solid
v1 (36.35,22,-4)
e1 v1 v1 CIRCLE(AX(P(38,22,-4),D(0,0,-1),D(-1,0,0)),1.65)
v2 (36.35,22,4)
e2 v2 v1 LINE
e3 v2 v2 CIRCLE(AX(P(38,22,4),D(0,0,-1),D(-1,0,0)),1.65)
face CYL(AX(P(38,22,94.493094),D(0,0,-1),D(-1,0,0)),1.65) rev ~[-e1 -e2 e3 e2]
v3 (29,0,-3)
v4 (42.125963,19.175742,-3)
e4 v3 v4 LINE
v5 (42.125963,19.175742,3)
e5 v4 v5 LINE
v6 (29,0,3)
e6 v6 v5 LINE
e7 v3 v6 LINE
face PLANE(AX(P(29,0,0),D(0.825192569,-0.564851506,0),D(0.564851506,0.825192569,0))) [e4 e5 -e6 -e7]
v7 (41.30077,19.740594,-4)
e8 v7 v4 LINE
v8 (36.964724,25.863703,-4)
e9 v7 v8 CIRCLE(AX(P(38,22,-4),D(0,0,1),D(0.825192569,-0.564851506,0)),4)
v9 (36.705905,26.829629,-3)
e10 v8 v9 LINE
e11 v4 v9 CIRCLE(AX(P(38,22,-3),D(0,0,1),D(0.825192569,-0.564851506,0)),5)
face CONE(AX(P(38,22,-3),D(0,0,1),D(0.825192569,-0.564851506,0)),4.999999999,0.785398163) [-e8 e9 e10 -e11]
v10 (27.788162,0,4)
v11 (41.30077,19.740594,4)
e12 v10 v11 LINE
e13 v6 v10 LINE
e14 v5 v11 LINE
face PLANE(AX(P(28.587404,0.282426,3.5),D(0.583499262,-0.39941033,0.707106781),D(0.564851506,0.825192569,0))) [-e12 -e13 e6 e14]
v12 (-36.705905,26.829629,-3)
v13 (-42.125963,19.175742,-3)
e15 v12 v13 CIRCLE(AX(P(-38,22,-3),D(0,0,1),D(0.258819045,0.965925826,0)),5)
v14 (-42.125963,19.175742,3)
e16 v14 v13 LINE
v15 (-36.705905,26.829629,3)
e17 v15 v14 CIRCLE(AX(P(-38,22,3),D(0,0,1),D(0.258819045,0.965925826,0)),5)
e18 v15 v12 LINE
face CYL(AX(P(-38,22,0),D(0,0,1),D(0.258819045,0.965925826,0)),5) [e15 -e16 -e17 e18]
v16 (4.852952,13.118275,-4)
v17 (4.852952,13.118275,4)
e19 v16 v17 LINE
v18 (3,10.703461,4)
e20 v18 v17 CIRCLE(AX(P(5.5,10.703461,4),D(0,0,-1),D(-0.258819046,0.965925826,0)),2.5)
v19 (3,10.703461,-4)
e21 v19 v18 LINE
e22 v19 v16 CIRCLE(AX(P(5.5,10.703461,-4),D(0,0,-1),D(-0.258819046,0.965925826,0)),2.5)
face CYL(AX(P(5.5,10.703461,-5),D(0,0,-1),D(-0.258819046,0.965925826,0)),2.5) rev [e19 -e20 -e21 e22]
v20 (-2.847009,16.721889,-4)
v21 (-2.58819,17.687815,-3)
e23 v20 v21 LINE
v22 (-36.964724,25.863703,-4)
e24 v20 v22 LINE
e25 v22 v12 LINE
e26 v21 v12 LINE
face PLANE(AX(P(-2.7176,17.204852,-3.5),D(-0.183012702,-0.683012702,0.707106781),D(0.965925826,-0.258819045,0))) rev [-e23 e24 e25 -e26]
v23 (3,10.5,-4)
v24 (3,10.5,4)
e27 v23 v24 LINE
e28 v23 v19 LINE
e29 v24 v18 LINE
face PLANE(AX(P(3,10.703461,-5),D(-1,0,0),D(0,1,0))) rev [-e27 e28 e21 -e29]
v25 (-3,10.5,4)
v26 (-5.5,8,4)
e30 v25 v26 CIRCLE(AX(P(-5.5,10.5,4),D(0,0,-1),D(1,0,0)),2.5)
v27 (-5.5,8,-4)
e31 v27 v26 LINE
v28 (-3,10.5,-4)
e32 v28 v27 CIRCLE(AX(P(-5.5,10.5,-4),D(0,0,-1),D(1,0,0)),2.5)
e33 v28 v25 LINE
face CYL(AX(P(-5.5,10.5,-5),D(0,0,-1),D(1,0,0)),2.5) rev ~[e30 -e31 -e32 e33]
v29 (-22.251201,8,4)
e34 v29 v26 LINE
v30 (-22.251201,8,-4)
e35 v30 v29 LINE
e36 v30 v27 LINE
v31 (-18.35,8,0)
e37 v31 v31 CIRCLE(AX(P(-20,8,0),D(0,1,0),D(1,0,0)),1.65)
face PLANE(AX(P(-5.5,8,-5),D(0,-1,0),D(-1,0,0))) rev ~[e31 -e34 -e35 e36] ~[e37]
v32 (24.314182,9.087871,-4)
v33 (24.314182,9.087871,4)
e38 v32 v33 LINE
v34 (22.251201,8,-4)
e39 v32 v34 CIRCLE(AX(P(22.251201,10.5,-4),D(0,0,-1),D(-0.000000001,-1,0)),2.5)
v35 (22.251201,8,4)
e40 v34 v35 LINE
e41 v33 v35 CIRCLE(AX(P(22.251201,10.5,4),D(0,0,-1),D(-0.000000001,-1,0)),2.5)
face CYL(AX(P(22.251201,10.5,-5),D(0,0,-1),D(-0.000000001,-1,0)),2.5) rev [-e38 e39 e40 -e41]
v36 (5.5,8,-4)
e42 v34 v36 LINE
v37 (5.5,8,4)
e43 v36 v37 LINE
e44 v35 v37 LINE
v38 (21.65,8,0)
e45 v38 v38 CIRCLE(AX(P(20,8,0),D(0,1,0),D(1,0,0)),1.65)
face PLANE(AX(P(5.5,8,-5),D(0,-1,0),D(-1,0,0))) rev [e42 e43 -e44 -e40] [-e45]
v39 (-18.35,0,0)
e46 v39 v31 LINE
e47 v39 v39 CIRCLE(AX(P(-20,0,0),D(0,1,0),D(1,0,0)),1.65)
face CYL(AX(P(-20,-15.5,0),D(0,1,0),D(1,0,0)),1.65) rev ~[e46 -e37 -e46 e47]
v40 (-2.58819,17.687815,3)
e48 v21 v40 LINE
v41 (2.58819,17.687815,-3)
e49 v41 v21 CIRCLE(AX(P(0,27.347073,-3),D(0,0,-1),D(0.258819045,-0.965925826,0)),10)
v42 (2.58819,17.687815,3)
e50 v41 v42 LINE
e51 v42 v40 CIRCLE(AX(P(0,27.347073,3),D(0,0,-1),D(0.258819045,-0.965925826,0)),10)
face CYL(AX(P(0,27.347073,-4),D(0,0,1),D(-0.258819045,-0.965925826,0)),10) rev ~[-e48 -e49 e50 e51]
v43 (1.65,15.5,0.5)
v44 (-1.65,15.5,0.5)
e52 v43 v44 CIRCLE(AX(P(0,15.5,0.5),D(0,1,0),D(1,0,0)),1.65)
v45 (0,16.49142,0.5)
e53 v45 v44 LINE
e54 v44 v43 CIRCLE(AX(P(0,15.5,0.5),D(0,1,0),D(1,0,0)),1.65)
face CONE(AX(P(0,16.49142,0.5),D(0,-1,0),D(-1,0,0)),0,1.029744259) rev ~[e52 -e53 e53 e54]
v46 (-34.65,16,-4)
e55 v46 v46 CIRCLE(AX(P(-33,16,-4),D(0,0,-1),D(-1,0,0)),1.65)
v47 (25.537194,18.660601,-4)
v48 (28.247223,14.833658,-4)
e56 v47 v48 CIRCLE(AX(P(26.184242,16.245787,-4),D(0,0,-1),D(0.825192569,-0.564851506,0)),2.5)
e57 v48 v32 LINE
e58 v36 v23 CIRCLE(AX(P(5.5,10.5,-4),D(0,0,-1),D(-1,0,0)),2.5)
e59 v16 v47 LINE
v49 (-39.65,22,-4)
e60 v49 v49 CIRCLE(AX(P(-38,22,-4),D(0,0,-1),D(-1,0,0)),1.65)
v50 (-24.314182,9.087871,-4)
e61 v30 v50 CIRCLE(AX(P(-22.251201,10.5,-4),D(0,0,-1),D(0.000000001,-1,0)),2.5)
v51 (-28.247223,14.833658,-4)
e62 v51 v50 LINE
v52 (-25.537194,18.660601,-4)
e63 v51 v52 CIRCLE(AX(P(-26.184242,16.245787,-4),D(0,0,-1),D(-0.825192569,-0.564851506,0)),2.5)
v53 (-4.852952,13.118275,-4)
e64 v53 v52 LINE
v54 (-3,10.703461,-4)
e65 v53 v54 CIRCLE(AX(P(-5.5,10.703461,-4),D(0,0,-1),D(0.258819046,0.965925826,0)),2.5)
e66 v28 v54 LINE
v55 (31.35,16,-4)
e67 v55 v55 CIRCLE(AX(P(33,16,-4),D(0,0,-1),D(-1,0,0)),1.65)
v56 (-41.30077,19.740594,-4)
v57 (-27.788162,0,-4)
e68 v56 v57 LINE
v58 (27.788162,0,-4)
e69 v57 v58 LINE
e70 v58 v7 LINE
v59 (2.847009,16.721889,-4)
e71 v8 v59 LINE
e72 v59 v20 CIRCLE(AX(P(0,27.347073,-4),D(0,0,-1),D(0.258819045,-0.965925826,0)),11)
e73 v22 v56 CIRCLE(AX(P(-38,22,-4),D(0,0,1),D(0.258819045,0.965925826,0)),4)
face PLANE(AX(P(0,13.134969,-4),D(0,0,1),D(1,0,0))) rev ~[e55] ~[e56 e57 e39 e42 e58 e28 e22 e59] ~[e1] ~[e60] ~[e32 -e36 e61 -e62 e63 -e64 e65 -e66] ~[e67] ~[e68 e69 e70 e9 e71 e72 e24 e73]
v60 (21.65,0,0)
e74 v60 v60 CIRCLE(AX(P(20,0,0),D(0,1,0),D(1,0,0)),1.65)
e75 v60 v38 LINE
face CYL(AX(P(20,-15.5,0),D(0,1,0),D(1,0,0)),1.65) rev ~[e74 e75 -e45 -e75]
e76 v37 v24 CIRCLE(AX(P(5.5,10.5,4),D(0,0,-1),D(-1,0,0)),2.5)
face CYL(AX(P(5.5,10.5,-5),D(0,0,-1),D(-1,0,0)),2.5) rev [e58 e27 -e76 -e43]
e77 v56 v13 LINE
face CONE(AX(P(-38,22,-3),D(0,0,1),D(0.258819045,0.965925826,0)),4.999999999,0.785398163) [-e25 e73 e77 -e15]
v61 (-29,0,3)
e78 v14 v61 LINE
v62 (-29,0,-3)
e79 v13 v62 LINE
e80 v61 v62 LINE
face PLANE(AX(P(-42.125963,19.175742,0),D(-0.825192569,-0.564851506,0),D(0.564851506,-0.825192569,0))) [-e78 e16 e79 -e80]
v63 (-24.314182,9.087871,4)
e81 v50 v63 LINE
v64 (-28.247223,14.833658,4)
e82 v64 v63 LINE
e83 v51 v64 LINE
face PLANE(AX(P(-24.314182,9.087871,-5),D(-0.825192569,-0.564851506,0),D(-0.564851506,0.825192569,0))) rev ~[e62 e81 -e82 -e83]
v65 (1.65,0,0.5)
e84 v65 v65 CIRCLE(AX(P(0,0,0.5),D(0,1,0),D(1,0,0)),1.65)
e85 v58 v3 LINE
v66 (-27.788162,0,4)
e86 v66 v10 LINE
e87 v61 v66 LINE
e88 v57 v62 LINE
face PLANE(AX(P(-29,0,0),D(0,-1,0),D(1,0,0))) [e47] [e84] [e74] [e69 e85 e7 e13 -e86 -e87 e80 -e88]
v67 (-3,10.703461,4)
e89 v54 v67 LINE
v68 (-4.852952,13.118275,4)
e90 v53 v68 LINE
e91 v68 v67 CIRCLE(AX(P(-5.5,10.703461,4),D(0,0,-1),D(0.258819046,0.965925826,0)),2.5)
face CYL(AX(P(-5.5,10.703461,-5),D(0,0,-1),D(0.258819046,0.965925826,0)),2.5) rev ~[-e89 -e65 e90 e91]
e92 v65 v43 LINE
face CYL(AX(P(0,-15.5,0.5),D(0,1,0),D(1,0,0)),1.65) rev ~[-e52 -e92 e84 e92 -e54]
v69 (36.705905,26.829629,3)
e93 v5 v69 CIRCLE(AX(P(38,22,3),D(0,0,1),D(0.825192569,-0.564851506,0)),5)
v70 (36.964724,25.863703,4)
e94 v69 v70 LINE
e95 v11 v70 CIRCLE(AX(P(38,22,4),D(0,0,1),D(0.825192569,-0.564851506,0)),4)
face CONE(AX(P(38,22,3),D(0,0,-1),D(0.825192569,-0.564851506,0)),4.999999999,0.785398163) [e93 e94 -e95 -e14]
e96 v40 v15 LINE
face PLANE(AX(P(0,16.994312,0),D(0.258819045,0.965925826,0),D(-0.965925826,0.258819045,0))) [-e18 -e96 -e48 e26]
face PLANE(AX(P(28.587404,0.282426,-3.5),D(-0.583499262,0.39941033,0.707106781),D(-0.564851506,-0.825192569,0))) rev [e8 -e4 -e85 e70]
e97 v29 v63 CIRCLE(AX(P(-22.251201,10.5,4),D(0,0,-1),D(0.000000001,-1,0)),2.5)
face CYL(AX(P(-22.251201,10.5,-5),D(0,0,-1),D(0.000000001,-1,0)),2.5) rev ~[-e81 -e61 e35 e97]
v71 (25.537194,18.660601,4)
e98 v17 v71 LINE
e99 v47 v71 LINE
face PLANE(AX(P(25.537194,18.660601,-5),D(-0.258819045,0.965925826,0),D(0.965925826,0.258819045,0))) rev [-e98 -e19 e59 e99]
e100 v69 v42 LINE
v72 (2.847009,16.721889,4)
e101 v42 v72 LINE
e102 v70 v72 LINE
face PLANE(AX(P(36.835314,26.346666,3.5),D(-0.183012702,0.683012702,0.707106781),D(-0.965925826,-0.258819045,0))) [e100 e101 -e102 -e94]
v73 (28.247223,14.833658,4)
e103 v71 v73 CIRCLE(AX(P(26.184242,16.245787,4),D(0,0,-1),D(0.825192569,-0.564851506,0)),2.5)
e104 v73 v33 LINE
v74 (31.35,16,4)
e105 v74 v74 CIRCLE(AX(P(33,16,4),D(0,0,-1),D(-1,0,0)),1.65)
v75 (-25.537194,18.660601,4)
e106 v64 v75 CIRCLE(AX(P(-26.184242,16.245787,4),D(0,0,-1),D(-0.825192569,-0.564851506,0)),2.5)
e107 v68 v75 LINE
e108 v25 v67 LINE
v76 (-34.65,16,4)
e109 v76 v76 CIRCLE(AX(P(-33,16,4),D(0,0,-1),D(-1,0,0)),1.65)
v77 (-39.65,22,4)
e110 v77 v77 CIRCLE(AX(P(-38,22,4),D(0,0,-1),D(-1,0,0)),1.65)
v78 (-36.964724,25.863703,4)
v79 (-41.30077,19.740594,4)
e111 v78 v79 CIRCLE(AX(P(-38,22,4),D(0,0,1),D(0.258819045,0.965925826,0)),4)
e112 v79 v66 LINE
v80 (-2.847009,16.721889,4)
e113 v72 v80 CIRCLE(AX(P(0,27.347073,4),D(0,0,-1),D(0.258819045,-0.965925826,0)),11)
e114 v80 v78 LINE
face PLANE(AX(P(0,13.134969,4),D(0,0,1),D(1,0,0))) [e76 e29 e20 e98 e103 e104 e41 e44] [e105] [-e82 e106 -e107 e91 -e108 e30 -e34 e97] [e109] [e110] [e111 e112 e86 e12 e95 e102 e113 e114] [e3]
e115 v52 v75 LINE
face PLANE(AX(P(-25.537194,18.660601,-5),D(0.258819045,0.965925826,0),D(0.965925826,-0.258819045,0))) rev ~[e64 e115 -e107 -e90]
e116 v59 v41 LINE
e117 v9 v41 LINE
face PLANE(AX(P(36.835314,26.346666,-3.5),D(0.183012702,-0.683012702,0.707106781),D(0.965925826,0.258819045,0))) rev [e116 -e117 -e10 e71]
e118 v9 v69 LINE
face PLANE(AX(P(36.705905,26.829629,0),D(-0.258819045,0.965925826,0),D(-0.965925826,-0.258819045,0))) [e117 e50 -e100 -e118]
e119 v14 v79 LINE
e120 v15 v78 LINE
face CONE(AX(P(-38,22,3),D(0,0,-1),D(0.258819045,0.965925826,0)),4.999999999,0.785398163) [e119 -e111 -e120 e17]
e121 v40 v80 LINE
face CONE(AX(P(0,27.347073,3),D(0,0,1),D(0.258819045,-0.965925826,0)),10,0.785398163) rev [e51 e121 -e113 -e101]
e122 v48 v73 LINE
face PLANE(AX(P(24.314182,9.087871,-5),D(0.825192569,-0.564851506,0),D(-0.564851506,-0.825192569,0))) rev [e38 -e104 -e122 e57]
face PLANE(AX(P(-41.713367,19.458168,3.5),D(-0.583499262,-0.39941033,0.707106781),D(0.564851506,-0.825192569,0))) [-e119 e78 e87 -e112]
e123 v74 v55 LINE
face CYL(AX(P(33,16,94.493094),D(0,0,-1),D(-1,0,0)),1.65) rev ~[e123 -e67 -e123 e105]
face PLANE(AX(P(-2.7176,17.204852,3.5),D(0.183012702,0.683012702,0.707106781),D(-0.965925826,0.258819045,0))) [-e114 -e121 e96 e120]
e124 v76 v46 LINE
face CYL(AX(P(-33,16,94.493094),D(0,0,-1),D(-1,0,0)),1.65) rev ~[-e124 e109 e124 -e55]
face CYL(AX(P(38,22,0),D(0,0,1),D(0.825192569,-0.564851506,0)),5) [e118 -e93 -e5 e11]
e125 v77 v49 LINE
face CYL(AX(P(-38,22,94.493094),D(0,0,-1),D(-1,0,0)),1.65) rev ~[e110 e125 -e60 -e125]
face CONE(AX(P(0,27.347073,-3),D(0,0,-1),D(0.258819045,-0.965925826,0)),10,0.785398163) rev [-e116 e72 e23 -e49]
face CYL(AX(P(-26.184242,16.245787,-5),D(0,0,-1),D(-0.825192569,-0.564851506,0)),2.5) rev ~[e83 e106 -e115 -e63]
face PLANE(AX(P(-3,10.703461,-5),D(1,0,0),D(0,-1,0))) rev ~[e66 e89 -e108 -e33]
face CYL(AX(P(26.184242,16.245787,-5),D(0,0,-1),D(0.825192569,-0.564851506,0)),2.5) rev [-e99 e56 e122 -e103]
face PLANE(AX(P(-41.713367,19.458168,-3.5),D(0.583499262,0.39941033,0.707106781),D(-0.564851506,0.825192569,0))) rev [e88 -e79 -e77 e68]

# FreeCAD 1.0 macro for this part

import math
import FreeCAD as App
import Part
import Sketcher

V = App.Vector
Q = App.Units.Quantity


def edges_at(feature, points):
    """Names of the edges that pass closest to the given points."""
    edges = feature.Shape.Edges
    near = lambda p: min(range(len(edges)), key=lambda i: edges[i].distToShape(Part.Vertex(*p))[0])
    return sorted({f"Edge{near(p) + 1}" for p in points})

doc = App.newDocument("Part")
body = doc.addObject("PartDesign::Body", "Body")

# Sketch on XY plane
sketch1 = doc.addObject("Sketcher::SketchObject", "Sketch")
body.addObject(sketch1)
sketch1.AttachmentSupport = (doc.XY_Plane, [""])
sketch1.MapMode = "FlatFace"
sketch1.addGeometry(Part.LineSegment(V(-29, 0, 0), V(29, 0, 0)), False)
sketch1.addGeometry(Part.LineSegment(V(29, 0, 0), V(42.125963, 19.175742, 0)), False)
sketch1.addGeometry(Part.ArcOfCircle(Part.Circle(V(38, 22, 0), V(0, 0, 1), 5), math.radians(-34.39198), math.radians(105)), False)
sketch1.addGeometry(Part.LineSegment(V(36.705905, 26.829629, 0), V(0, 16.994312, 0)), False)
sketch1.addGeometry(Part.LineSegment(V(0, 16.994312, 0), V(-36.705905, 26.829629, 0)), False)
sketch1.addGeometry(Part.ArcOfCircle(Part.Circle(V(-38, 22, 0), V(0, 0, 1), 5), math.radians(75), math.radians(214.39198)), False)
sketch1.addGeometry(Part.LineSegment(V(-42.125963, 19.175742, 0), V(-29, 0, 0)), False)
sketch1.addConstraint(Sketcher.Constraint("Coincident", 0, 2, 1, 1))
sketch1.addConstraint(Sketcher.Constraint("Tangent", 1, 2, 2, 1))
sketch1.addConstraint(Sketcher.Constraint("Tangent", 2, 2, 3, 1))
sketch1.addConstraint(Sketcher.Constraint("Coincident", 3, 2, 4, 1))
sketch1.addConstraint(Sketcher.Constraint("Tangent", 4, 2, 5, 1))
sketch1.addConstraint(Sketcher.Constraint("Tangent", 5, 2, 6, 1))
sketch1.addConstraint(Sketcher.Constraint("Coincident", 6, 2, 0, 1))
sketch1.addConstraint(Sketcher.Constraint("Horizontal", 0))
sketch1.addConstraint(Sketcher.Constraint("Equal", 2, 5))
sketch1.addConstraint(Sketcher.Constraint("Symmetric", 0, 2, 6, 2, -1, 1))
sketch1.addConstraint(Sketcher.Constraint("Symmetric", 2, 3, 5, 3, -2))
sketch1.addConstraint(Sketcher.Constraint("PointOnObject", 3, 2, -2))
sketch1.addConstraint(Sketcher.Constraint("Radius", 2, 5.0))
sketch1.addConstraint(Sketcher.Constraint("DistanceX", 0, 1, 0, 2, 58.0))
sketch1.addConstraint(Sketcher.Constraint("Angle", 3, Q("-165 deg")))
sketch1.addConstraint(Sketcher.Constraint("DistanceX", -1, 1, 2, 3, 38.0))
sketch1.addConstraint(Sketcher.Constraint("DistanceY", -1, 1, 2, 3, 22.0))
pad1 = doc.addObject("PartDesign::Pad", "Pad")
body.addObject(pad1)
pad1.Profile = sketch1
pad1.Length = 8
pad1.Midplane = True

# Sketch on XY plane
sketch2 = doc.addObject("Sketcher::SketchObject", "Sketch001")
body.addObject(sketch2)
sketch2.AttachmentSupport = (doc.XY_Plane, [""])
sketch2.MapMode = "FlatFace"
sketch2.AttachmentOffset = App.Placement(V(0, 0, 4), App.Rotation())
sketch2.addGeometry(Part.Circle(V(-38, 22, 0), V(0, 0, 1), 1.65), False)
sketch2.addGeometry(Part.Circle(V(38, 22, 0), V(0, 0, 1), 1.65), False)
sketch2.addGeometry(Part.Circle(V(-33, 16, 0), V(0, 0, 1), 1.65), False)
sketch2.addGeometry(Part.Circle(V(33, 16, 0), V(0, 0, 1), 1.65), False)
sketch2.addConstraint(Sketcher.Constraint("Equal", 0, 1))
sketch2.addConstraint(Sketcher.Constraint("Equal", 1, 2))
sketch2.addConstraint(Sketcher.Constraint("Equal", 2, 3))
sketch2.addConstraint(Sketcher.Constraint("Symmetric", 0, 3, 1, 3, -2))
sketch2.addConstraint(Sketcher.Constraint("Symmetric", 2, 3, 3, 3, -2))
sketch2.addConstraint(Sketcher.Constraint("Diameter", 0, 3.3))
sketch2.addConstraint(Sketcher.Constraint("DistanceX", 0, 3, -1, 1, 38.0))
sketch2.addConstraint(Sketcher.Constraint("DistanceY", -1, 1, 0, 3, 22.0))
sketch2.addConstraint(Sketcher.Constraint("DistanceX", 2, 3, -1, 1, 33.0))
sketch2.addConstraint(Sketcher.Constraint("DistanceY", -1, 1, 2, 3, 16.0))
doc.recompute()
hole = doc.addObject("PartDesign::Hole", "Hole")
body.addObject(hole)
hole.Profile = sketch2
hole.ThreadType = "None"
hole.Diameter = 3.3
hole.DepthType = "ThroughAll"

# Sketch on XZ plane
sketch3 = doc.addObject("Sketcher::SketchObject", "Sketch002")
body.addObject(sketch3)
sketch3.AttachmentSupport = (doc.XZ_Plane, [""])
sketch3.MapMode = "FlatFace"
sketch3.addGeometry(Part.Circle(V(-20, 0, 0), V(0, 0, 1), 1.65), False)
sketch3.addGeometry(Part.Circle(V(20, 0, 0), V(0, 0, 1), 1.65), False)
sketch3.addGeometry(Part.Circle(V(0, 0.5, 0), V(0, 0, 1), 1.65), False)
sketch3.addConstraint(Sketcher.Constraint("Equal", 0, 1))
sketch3.addConstraint(Sketcher.Constraint("Equal", 1, 2))
sketch3.addConstraint(Sketcher.Constraint("Symmetric", 0, 3, 1, 3, -1, 1))
sketch3.addConstraint(Sketcher.Constraint("PointOnObject", 0, 3, -1))
sketch3.addConstraint(Sketcher.Constraint("PointOnObject", 2, 3, -2))
sketch3.addConstraint(Sketcher.Constraint("Diameter", 0, 3.3))
sketch3.addConstraint(Sketcher.Constraint("DistanceX", 0, 3, -1, 1, 20.0))
sketch3.addConstraint(Sketcher.Constraint("DistanceY", -1, 1, 2, 3, 0.5))
doc.recompute()
hole2 = doc.addObject("PartDesign::Hole", "Hole001")
body.addObject(hole2)
hole2.Profile = sketch3
hole2.ThreadType = "None"
hole2.Diameter = 3.3
hole2.DepthType = "Dimension"
hole2.Depth = 15.5
hole2.DrillPoint = "Angled"
hole2.DrillPointAngle = 118
doc.recompute()

fillet = doc.addObject("PartDesign::Fillet", "Fillet")
body.addObject(fillet)
fillet.Base = (hole2, edges_at(hole2, [(0, 16.994, 0)]))
fillet.Radius = 10

# Sketch on XY plane
sketch4 = doc.addObject("Sketcher::SketchObject", "Sketch003")
body.addObject(sketch4)
sketch4.AttachmentSupport = (doc.XY_Plane, [""])
sketch4.MapMode = "FlatFace"
sketch4.AttachmentOffset = App.Placement(V(0, 0, -5), App.Rotation())
sketch4.addGeometry(Part.LineSegment(V(-3, 10.5, 0), V(-3, 10.703461, 0)), False)
sketch4.addGeometry(Part.ArcOfCircle(Part.Circle(V(-5.5, 10.703461, 0), V(0, 0, 1), 2.5), math.radians(0), math.radians(75)), False)
sketch4.addGeometry(Part.LineSegment(V(-4.852952, 13.118275, 0), V(-25.537194, 18.660601, 0)), False)
sketch4.addGeometry(Part.ArcOfCircle(Part.Circle(V(-26.184242, 16.245787, 0), V(0, 0, 1), 2.5), math.radians(75), math.radians(214.39198)), False)
sketch4.addGeometry(Part.LineSegment(V(-28.247223, 14.833658, 0), V(-24.314182, 9.087871, 0)), False)
sketch4.addGeometry(Part.ArcOfCircle(Part.Circle(V(-22.251201, 10.5, 0), V(0, 0, 1), 2.5), math.radians(-145.60802), math.radians(-90)), False)
sketch4.addGeometry(Part.LineSegment(V(-22.251201, 8, 0), V(-5.5, 8, 0)), False)
sketch4.addGeometry(Part.ArcOfCircle(Part.Circle(V(-5.5, 10.5, 0), V(0, 0, 1), 2.5), math.radians(-90), math.radians(0)), False)
sketch4.addConstraint(Sketcher.Constraint("Tangent", 0, 2, 1, 1))
sketch4.addConstraint(Sketcher.Constraint("Tangent", 1, 2, 2, 1))
sketch4.addConstraint(Sketcher.Constraint("Tangent", 2, 2, 3, 1))
sketch4.addConstraint(Sketcher.Constraint("Tangent", 3, 2, 4, 1))
sketch4.addConstraint(Sketcher.Constraint("Tangent", 4, 2, 5, 1))
sketch4.addConstraint(Sketcher.Constraint("Tangent", 5, 2, 6, 1))
sketch4.addConstraint(Sketcher.Constraint("Tangent", 6, 2, 7, 1))
sketch4.addConstraint(Sketcher.Constraint("Tangent", 7, 2, 0, 1))
sketch4.addConstraint(Sketcher.Constraint("Vertical", 0))
sketch4.addConstraint(Sketcher.Constraint("Horizontal", 6))
sketch4.addConstraint(Sketcher.Constraint("Equal", 1, 3))
sketch4.addConstraint(Sketcher.Constraint("Equal", 3, 5))
sketch4.addConstraint(Sketcher.Constraint("Equal", 5, 7))
sketch4.addConstraint(Sketcher.Constraint("Radius", 1, 2.5))
sketch4.addConstraint(Sketcher.Constraint("Angle", 2, Q("165 deg")))
sketch4.addConstraint(Sketcher.Constraint("DistanceX", 0, 2, -1, 1, 3.0))
sketch4.addConstraint(Sketcher.Constraint("DistanceY", -1, 1, 5, 2, 8.0))
sketch4.addConstraint(Sketcher.Constraint("DistanceX", 6, 1, 6, 2, 16.751201))
sketch4.addConstraint(Sketcher.Constraint("DistanceY", 0, 1, 0, 2, 0.203461))
sketch4.addConstraint(Sketcher.Constraint("DistanceY", -1, 1, 2, 2, 18.660601))
pocket1 = doc.addObject("PartDesign::Pocket", "Pocket")
body.addObject(pocket1)
pocket1.Profile = sketch4
pocket1.Length = 10
pocket1.Reversed = True
doc.recompute()

mirrored = doc.addObject("PartDesign::Mirrored", "Mirrored")
body.addObject(mirrored)
mirrored.Originals = [pocket1]
mirrored.MirrorPlane = (doc.YZ_Plane, [""])
body.Tip = mirrored
doc.recompute()

chamfer = doc.addObject("PartDesign::Chamfer", "Chamfer")
body.addObject(chamfer)
chamfer.Base = (mirrored, edges_at(mirrored, [
    (-35.563, 9.588, -4),
    (-42.08, 24.89, 4),
    (-42.08, 24.89, -4),
    (-19.647, 22.259, -4),
    (-35.563, 9.588, 4),
    (35.563, 9.588, 4),
    (42.08, 24.89, 4),
    (-19.647, 22.259, 4),
    (19.647, 22.259, -4),
    (19.647, 22.259, 4),
    (0, 17.347, -4),
    (0, 17.347, 4),
    (42.08, 24.89, -4),
    (35.563, 9.588, -4),
]))
chamfer.Size = 1

doc.recompute()
